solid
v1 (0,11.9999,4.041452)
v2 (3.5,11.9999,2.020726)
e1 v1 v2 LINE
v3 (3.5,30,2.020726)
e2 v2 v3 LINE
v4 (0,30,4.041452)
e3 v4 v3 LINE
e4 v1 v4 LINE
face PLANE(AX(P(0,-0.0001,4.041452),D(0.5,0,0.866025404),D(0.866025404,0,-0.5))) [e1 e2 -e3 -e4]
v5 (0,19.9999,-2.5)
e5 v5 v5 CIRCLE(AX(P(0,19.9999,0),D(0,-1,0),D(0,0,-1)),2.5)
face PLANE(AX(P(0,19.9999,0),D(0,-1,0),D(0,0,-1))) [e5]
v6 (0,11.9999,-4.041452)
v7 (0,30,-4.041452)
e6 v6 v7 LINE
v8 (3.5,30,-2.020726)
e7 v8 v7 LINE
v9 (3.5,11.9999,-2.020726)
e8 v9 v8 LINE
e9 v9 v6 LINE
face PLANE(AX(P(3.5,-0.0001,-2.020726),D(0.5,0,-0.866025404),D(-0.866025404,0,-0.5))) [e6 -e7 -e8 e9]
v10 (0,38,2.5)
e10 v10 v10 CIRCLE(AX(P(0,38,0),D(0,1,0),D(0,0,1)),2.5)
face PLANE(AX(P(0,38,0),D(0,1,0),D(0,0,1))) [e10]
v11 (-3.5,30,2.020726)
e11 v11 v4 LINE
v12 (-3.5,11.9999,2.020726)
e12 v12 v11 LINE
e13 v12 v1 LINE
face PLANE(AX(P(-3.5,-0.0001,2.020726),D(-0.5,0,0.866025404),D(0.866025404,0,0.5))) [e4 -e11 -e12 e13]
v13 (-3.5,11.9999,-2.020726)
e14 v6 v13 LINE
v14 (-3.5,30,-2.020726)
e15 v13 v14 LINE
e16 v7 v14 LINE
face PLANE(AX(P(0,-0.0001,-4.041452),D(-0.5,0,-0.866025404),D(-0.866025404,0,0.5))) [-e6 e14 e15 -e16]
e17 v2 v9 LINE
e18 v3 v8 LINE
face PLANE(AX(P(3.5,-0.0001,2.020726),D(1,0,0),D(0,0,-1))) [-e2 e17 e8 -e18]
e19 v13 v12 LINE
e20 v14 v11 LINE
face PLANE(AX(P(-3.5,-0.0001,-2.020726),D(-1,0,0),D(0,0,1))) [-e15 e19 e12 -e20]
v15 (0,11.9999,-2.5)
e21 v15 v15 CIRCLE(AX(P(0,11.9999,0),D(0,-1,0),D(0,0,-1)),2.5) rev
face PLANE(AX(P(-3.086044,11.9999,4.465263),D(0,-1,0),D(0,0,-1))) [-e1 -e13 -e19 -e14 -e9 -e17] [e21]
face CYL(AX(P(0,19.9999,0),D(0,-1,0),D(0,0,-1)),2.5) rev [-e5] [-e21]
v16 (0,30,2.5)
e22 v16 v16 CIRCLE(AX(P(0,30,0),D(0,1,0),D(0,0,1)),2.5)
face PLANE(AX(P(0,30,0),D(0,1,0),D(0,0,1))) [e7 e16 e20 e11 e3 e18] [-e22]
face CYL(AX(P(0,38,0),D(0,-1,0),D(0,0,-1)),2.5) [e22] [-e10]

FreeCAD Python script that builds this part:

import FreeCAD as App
import Part
import Sketcher
from FreeCAD import Vector
Q = App.Units.Quantity


def add_polygon(sketch, points):
    """Adds a closed chain of lines whose ends are joined by coincident constraints."""
    first, n = sketch.GeometryCount, len(points)
    for a, b in zip(points, points[1:] + points[:1]):
        sketch.addGeometry(Part.LineSegment(App.Vector(*a, 0), App.Vector(*b, 0)), False)
    for i in range(n):
        sketch.addConstraint(Sketcher.Constraint("Coincident", first + i, 2, first + (i + 1) % n, 1))

doc = App.newDocument("Part")
body = doc.addObject("PartDesign::Body", "Body")

sketch1 = doc.addObject("Sketcher::SketchObject", "Sketch")
body.addObject(sketch1)
sketch1.AttachmentSupport = (doc.XZ_Plane, [""])
sketch1.MapMode = "FlatFace"
add_polygon(sketch1, [(0, 4), (3.5, 2), (3.5, -2), (0, -4), (-3.5, -2), (-3.5, 2)])
sketch1.addConstraint([
    Sketcher.Constraint("Vertical", 1),
    Sketcher.Constraint("Vertical", 4),
    Sketcher.Constraint("Symmetric", 0, 2, 3, 2, -1, 1),
    Sketcher.Constraint("Symmetric", 2, 2, 5, 2, -1, 1),
    Sketcher.Constraint("PointOnObject", 2, 2, -2),
    Sketcher.Constraint("Parallel", 2, 5),
    Sketcher.Constraint("Horizontal", 1, 2, 3, 2),
    Sketcher.Constraint("Angle", 0, Q("-30 deg")),
    Sketcher.Constraint("DistanceX", 3, 2, 1, 2, 7.0),
    Sketcher.Constraint("DistanceY", 1, 2, 1, 1, 4.041452),
])
pad1 = doc.addObject("PartDesign::Pad", "Pad")
body.addObject(pad1)
pad1.Profile = sketch1
pad1.Type = "TwoLengths"
pad1.Length = 30
pad1.Length2 = 0.0001
pad1.Reversed = True

sketch2 = doc.addObject("Sketcher::SketchObject", "Sketch001")
body.addObject(sketch2)
sketch2.AttachmentSupport = (doc.XZ_Plane, [""])
sketch2.MapMode = "FlatFace"
sketch2.AttachmentOffset = App.Placement(Vector(0, 0, 0.0001), App.Rotation())
sketch2.addGeometry(Part.Circle(Vector(0, 0, 0), Vector(0, 0, 1), 2.5), False)
sketch2.addConstraint([
    Sketcher.Constraint("Coincident", 0, 3, -1, 1),
    Sketcher.Constraint("Diameter", 0, 5.0),
])
pocket1 = doc.addObject("PartDesign::Pocket", "Pocket")
body.addObject(pocket1)
pocket1.Profile = sketch2
pocket1.Length = 20

sketch3 = doc.addObject("Sketcher::SketchObject", "Sketch002")
body.addObject(sketch3)
sketch3.AttachmentSupport = (doc.XZ_Plane, [""])
sketch3.MapMode = "FlatFace"
sketch3.AttachmentOffset = App.Placement(Vector(0, 0, -30), App.Rotation())
sketch3.addGeometry(Part.Circle(Vector(0, 0, 0), Vector(0, 0, 1), 2.5), False)
sketch3.addConstraint([
    Sketcher.Constraint("Coincident", 0, 3, -1, 1),
    Sketcher.Constraint("Diameter", 0, 5.0),
])
pad2 = doc.addObject("PartDesign::Pad", "Pad001")
body.addObject(pad2)
pad2.Profile = sketch3
pad2.Length = 8
pad2.Reversed = True

sketch4 = doc.addObject("Sketcher::SketchObject", "Sketch003")
body.addObject(sketch4)
sketch4.AttachmentSupport = (doc.XZ_Plane, [""])
sketch4.MapMode = "FlatFace"
sketch4.AttachmentOffset = App.Placement(Vector(0, 0, 0.0001), App.Rotation())
sketch4.addGeometry(Part.Circle(Vector(0, 0, 0), Vector(0, 0, 1), 8), False)
sketch4.addConstraint([
    Sketcher.Constraint("Coincident", 0, 3, -1, 1),
    Sketcher.Constraint("Diameter", 0, 15.801458),
])
pocket2 = doc.addObject("PartDesign::Pocket", "Pocket001")
body.addObject(pocket2)
pocket2.Profile = sketch4
pocket2.Length = 2

sketch5 = doc.addObject("Sketcher::SketchObject", "Sketch004")
body.addObject(sketch5)
sketch5.AttachmentSupport = (doc.XZ_Plane, [""])
sketch5.MapMode = "FlatFace"
sketch5.AttachmentOffset = App.Placement(Vector(0, 0, -1.9999), App.Rotation())
sketch5.addGeometry(Part.Circle(Vector(-3, 4, 0), Vector(0, 0, 1), 14), False)
sketch5.addConstraint([
    Sketcher.Constraint("Diameter", 0, 27.941425),
    Sketcher.Constraint("DistanceX", 0, 3, -1, 1, 3.086044),
    Sketcher.Constraint("DistanceY", -1, 1, 0, 3, 4.465263),
])
pocket3 = doc.addObject("PartDesign::Pocket", "Pocket002")
body.addObject(pocket3)
pocket3.Profile = sketch5
pocket3.Length = 10

doc.recompute()
